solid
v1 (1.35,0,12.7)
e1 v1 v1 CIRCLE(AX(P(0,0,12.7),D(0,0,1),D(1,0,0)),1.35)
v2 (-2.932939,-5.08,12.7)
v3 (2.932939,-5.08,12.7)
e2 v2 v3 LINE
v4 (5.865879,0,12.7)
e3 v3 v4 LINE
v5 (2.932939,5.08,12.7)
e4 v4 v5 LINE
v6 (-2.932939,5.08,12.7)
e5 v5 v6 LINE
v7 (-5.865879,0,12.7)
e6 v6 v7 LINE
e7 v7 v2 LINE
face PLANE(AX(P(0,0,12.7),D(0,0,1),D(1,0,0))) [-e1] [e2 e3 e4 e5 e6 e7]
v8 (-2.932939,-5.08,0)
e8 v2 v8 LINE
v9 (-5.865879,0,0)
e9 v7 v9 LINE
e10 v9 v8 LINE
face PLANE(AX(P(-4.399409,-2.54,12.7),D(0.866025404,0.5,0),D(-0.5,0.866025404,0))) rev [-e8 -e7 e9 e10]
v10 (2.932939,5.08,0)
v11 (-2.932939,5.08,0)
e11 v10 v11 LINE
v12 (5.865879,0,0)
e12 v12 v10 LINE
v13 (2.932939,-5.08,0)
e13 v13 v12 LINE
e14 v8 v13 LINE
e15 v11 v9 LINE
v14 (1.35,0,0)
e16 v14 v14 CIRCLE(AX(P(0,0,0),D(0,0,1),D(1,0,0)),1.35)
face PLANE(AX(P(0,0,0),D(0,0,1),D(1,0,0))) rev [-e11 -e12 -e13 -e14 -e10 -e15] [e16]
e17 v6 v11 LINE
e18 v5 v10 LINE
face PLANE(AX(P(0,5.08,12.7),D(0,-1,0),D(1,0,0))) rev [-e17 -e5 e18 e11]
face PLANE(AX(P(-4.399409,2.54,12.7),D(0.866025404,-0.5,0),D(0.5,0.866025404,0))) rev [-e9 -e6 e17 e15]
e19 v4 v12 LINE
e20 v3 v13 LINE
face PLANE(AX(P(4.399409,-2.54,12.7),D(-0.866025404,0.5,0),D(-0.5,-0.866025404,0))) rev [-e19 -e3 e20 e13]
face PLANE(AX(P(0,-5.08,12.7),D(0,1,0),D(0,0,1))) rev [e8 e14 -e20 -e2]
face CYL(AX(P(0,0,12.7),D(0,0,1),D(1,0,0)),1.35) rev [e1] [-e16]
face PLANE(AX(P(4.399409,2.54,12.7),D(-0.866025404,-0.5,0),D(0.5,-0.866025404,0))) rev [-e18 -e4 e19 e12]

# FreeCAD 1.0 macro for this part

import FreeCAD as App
import Part
import Sketcher

V = App.Vector
Q = App.Units.Quantity

doc = App.newDocument("Part")
params = doc.addObject("Spreadsheet::Sheet", "Params")
for row, (alias, value) in enumerate([
    ("pad1_length", "12.7 mm"),
    ("sketch2_diameter", "2.7 mm"),
    ("hole_diameter", "2.7 mm"),
], start=1):
    params.set(f"A{row}", alias)
    params.set(f"B{row}", "=" + value)
    params.setAlias(f"B{row}", alias)

body = doc.addObject("PartDesign::Body", "Body")

sketch1 = body.newObject("Sketcher::SketchObject", "Sketch")
sketch1.AttachmentSupport = (doc.getObject("XY_Plane"), [""])
sketch1.MapMode = "FlatFace"
sketch1.addGeometry(Part.LineSegment(V(-2.9, 5.1, 0), V(-4.4, 2.5, 0)), False)
sketch1.addGeometry(Part.LineSegment(V(-4.4, 2.5, 0), V(-5.9, 0, 0)), False)
sketch1.addGeometry(Part.LineSegment(V(-5.9, 0, 0), V(-4.4, -2.5, 0)), False)
sketch1.addGeometry(Part.LineSegment(V(-4.4, -2.5, 0), V(-2.9, -5.1, 0)), False)
sketch1.addGeometry(Part.LineSegment(V(-2.9, -5.1, 0), V(2.9, -5.1, 0)), False)
sketch1.addGeometry(Part.LineSegment(V(2.9, -5.1, 0), V(4.4, -2.5, 0)), False)
sketch1.addGeometry(Part.LineSegment(V(4.4, -2.5, 0), V(5.9, 0, 0)), False)
sketch1.addGeometry(Part.LineSegment(V(5.9, 0, 0), V(4.4, 2.5, 0)), False)
sketch1.addGeometry(Part.LineSegment(V(4.4, 2.5, 0), V(2.9, 5.1, 0)), False)
sketch1.addGeometry(Part.LineSegment(V(2.9, 5.1, 0), V(-2.9, 5.1, 0)), False)
sketch1.addConstraint(Sketcher.Constraint("Coincident", 0, 2, 1, 1))
sketch1.addConstraint(Sketcher.Constraint("Coincident", 1, 2, 2, 1))
sketch1.addConstraint(Sketcher.Constraint("Coincident", 2, 2, 3, 1))
sketch1.addConstraint(Sketcher.Constraint("Coincident", 3, 2, 4, 1))
sketch1.addConstraint(Sketcher.Constraint("Coincident", 4, 2, 5, 1))
sketch1.addConstraint(Sketcher.Constraint("Coincident", 5, 2, 6, 1))
sketch1.addConstraint(Sketcher.Constraint("Coincident", 6, 2, 7, 1))
sketch1.addConstraint(Sketcher.Constraint("Coincident", 7, 2, 8, 1))
sketch1.addConstraint(Sketcher.Constraint("Coincident", 8, 2, 9, 1))
sketch1.addConstraint(Sketcher.Constraint("Coincident", 9, 2, 0, 1))
sketch1.addConstraint(Sketcher.Constraint("Horizontal", 4))
sketch1.addConstraint(Sketcher.Constraint("Horizontal", 9))
sketch1.addConstraint(Sketcher.Constraint("Symmetric", 0, 2, 5, 2, -1, 1))
sketch1.addConstraint(Sketcher.Constraint("Symmetric", 1, 2, 6, 2, -1, 1))
sketch1.addConstraint(Sketcher.Constraint("Symmetric", 2, 2, 7, 2, -1, 1))
sketch1.addConstraint(Sketcher.Constraint("Symmetric", 3, 2, 8, 2, -1, 1))
sketch1.addConstraint(Sketcher.Constraint("Symmetric", 2, 2, 5, 2, -2))
sketch1.addConstraint(Sketcher.Constraint("PointOnObject", 1, 2, -1))
sketch1.addConstraint(Sketcher.Constraint("Parallel", 0, 1))
sketch1.addConstraint(Sketcher.Constraint("Parallel", 2, 3))
sketch1.addConstraint(Sketcher.Constraint("Parallel", 1, 5))
sketch1.addConstraint(Sketcher.Constraint("Equal", 0, 1))
sketch1.addConstraint(Sketcher.Constraint("Angle", 0, Q("-120 deg")))
sketch1.addConstraint(Sketcher.Constraint("DistanceY", -1, 1, 0, 2, 2.54))
sketch1.addConstraint(Sketcher.Constraint("DistanceX", 4, 1, 4, 2, 5.865879))
pad1 = body.newObject("PartDesign::Pad", "Pad")
pad1.Profile = sketch1
pad1.setExpression("Length", "Params.pad1_length")

sketch2 = body.newObject("Sketcher::SketchObject", "Sketch001")
sketch2.AttachmentSupport = (doc.getObject("XY_Plane"), [""])
sketch2.MapMode = "FlatFace"
sketch2.AttachmentOffset = App.Placement(V(0, 0, 12.7), App.Rotation())
sketch2.addGeometry(Part.Circle(V(0, 0, 0), V(0, 0, 1), 1.4), False)
sketch2.addConstraint(Sketcher.Constraint("Coincident", 0, 3, -1, 1))
sketch2.addConstraint(Sketcher.Constraint("Diameter", 0, 2.7))
sketch2.setExpression("Constraints[1]", "Params.sketch2_diameter")
doc.recompute()
hole = body.newObject("PartDesign::Hole", "Hole")
hole.Profile = sketch2
hole.ThreadType = "None"
hole.setExpression("Diameter", "Params.hole_diameter")
hole.DepthType = "ThroughAll"

doc.recompute()
